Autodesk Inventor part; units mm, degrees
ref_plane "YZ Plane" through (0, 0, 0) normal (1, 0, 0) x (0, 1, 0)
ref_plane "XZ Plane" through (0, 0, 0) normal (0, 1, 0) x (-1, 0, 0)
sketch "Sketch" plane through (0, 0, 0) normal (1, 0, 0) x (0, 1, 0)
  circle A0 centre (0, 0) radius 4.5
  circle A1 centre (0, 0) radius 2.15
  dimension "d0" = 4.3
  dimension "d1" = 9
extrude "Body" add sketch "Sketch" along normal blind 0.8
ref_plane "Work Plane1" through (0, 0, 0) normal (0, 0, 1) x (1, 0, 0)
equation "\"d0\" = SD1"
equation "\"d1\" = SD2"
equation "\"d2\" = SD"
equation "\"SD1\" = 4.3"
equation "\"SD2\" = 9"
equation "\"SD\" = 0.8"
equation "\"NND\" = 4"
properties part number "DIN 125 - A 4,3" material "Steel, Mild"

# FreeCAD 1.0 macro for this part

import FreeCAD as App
import Part
import Sketcher
Q = App.Units.Quantity

doc = App.newDocument("Part")
body = doc.addObject("PartDesign::Body", "Body")

sketch1 = doc.addObject("Sketcher::SketchObject", "Sketch")
body.addObject(sketch1)
sketch1.AttachmentSupport = (doc.YZ_Plane, [""])
sketch1.MapMode = "FlatFace"
sketch1.addGeometry([
    Part.Circle(App.Vector(0, 0, 0), App.Vector(0, 0, 1), 4.5),
    Part.Circle(App.Vector(0, 0, 0), App.Vector(0, 0, 1), 2.1),
], False)
sketch1.addConstraint([
    Sketcher.Constraint("Coincident", 0, 3, -1, 1),
    Sketcher.Constraint("Coincident", 1, 3, -1, 1),
    Sketcher.Constraint("Diameter", 0, Q("9 mm")),
    Sketcher.Constraint("Diameter", 1, Q("4.3 mm")),
])
pad1 = doc.addObject("PartDesign::Pad", "Pad")
body.addObject(pad1)
pad1.Profile = sketch1
pad1.Length = 0.8

doc.recompute()
